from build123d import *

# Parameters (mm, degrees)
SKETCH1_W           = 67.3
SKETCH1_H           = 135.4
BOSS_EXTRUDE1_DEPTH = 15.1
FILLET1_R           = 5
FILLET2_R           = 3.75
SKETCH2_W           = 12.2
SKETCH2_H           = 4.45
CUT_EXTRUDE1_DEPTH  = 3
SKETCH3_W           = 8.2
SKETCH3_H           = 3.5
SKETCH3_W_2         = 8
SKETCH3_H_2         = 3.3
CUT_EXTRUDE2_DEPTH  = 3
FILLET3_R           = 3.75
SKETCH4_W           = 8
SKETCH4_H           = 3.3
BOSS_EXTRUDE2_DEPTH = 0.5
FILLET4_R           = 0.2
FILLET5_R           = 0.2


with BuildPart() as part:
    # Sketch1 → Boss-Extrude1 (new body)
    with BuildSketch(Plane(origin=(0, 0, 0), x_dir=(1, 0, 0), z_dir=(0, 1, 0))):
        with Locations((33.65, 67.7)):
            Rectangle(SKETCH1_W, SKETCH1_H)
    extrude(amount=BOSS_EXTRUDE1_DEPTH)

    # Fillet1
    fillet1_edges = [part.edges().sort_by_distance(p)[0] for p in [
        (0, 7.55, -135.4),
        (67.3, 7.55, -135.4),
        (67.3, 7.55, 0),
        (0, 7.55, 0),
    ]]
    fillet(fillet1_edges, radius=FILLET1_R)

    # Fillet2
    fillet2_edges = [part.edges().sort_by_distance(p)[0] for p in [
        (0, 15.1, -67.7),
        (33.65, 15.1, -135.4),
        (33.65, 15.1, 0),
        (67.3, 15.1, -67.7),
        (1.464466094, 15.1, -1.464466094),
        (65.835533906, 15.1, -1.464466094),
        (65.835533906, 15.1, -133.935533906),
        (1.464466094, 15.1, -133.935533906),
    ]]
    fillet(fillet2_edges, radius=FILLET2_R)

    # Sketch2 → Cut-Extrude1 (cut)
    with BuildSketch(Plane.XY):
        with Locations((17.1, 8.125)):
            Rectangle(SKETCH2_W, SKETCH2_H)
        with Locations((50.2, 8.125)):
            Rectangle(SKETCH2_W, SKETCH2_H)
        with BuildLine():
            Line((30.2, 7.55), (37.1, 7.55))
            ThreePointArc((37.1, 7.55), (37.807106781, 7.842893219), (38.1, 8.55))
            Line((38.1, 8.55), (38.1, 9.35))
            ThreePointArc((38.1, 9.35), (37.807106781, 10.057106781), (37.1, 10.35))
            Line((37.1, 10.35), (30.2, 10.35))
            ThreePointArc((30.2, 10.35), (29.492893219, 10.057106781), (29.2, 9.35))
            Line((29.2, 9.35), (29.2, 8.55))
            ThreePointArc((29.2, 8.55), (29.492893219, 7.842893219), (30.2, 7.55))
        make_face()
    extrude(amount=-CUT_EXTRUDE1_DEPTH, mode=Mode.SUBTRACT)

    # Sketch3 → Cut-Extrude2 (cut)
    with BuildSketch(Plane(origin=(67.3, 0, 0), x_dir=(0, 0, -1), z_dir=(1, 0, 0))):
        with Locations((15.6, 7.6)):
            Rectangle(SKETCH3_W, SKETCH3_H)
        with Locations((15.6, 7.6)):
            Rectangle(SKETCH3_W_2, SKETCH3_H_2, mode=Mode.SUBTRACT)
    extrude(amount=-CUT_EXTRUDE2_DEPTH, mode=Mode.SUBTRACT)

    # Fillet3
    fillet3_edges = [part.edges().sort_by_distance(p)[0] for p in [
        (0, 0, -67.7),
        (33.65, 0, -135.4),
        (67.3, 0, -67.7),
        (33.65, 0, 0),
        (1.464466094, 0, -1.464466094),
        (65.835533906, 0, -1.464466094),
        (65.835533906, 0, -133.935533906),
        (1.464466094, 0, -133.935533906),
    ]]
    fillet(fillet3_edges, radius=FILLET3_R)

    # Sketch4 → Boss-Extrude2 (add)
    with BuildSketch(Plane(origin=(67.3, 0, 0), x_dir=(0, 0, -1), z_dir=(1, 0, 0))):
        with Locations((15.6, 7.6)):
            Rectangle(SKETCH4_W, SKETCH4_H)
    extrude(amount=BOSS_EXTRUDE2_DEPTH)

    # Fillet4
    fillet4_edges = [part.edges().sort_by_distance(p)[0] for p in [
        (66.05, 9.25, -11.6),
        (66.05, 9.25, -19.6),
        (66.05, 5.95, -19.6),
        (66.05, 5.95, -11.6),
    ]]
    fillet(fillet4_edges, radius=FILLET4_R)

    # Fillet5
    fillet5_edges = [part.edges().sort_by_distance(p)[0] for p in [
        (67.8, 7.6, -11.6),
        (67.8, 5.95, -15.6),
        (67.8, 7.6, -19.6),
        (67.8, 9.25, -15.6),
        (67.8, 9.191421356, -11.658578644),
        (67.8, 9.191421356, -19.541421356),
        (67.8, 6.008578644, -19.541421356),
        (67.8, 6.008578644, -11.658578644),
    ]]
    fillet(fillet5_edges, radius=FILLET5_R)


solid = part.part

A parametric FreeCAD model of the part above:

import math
import FreeCAD as App
import Part
import Sketcher

V = App.Vector


def edges_at(feature, points):
    """Names of the edges that pass closest to the given points."""
    edges = feature.Shape.Edges
    near = lambda p: min(range(len(edges)), key=lambda i: edges[i].distToShape(Part.Vertex(*p))[0])
    return sorted({f"Edge{near(p) + 1}" for p in points})


def add_polygon(sketch, points):
    """Adds a closed chain of lines whose ends are joined by coincident constraints."""
    first, n = sketch.GeometryCount, len(points)
    for a, b in zip(points, points[1:] + points[:1]):
        sketch.addGeometry(Part.LineSegment(App.Vector(*a, 0), App.Vector(*b, 0)), False)
    for i in range(n):
        sketch.addConstraint(Sketcher.Constraint("Coincident", first + i, 2, first + (i + 1) % n, 1))

doc = App.newDocument("Part")
body = doc.addObject("PartDesign::Body", "Body")

# Sketch on XZ plane
sketch1 = doc.addObject("Sketcher::SketchObject", "Sketch")
body.addObject(sketch1)
sketch1.AttachmentSupport = (doc.XZ_Plane, [""])
sketch1.MapMode = "FlatFace"
add_polygon(sketch1, [(0, -135.4), (0, 0), (67.3, 0), (67.3, -135.4)])  # lines 0-3
sketch1.addConstraint([
    Sketcher.Constraint("Vertical", 0),
    Sketcher.Constraint("Horizontal", 1),
    Sketcher.Constraint("Vertical", 2),
    Sketcher.Constraint("Horizontal", 3),
    Sketcher.Constraint("Coincident", 0, 2, -1, 1),
    Sketcher.Constraint("DistanceX", 1, 1, 1, 2, 67.3),
    Sketcher.Constraint("DistanceY", 0, 1, 0, 2, 135.4),
])
pad1 = doc.addObject("PartDesign::Pad", "Pad")
body.addObject(pad1)
pad1.Profile = sketch1
pad1.Length = 15.1
pad1.Reversed = True
doc.recompute()

fillet = doc.addObject("PartDesign::Fillet", "Fillet")
body.addObject(fillet)
fillet.Base = (pad1, edges_at(pad1, [
    (0, 7.55, -135.4),
    (67.3, 7.55, -135.4),
    (67.3, 7.55, 0),
    (0, 7.55, 0),
]))
fillet.Radius = 5
doc.recompute()

fillet2 = doc.addObject("PartDesign::Fillet", "Fillet001")
body.addObject(fillet2)
fillet2.Base = (fillet, edges_at(fillet, [
    (0, 15.1, -67.7),
    (33.65, 15.1, -135.4),
    (33.65, 15.1, 0),
    (67.3, 15.1, -67.7),
    (1.464, 15.1, -1.464),
    (65.836, 15.1, -1.464),
    (65.836, 15.1, -133.936),
    (1.464, 15.1, -133.936),
]))
fillet2.Radius = 3.75

# Sketch on XY plane
sketch2 = doc.addObject("Sketcher::SketchObject", "Sketch001")
body.addObject(sketch2)
sketch2.AttachmentSupport = (doc.XY_Plane, [""])
sketch2.MapMode = "FlatFace"
add_polygon(sketch2, [(11, 10.35), (11, 5.9), (23.2, 5.9), (23.2, 10.35)])  # lines 0-3
add_polygon(sketch2, [(44.1, 10.35), (44.1, 5.9), (56.3, 5.9), (56.3, 10.35)])  # lines 4-7
sketch2.addGeometry(Part.LineSegment(V(30.2, 7.55, 0), V(37.1, 7.55, 0)), False)  # 8
sketch2.addGeometry(Part.ArcOfCircle(Part.Circle(V(37.1, 8.55, 0), V(0, 0, 1), 1), math.radians(-90), math.radians(0)), False)  # 9
sketch2.addGeometry(Part.LineSegment(V(38.1, 8.55, 0), V(38.1, 9.35, 0)), False)  # 10
sketch2.addGeometry(Part.ArcOfCircle(Part.Circle(V(37.1, 9.35, 0), V(0, 0, 1), 1), math.radians(0), math.radians(90)), False)  # 11
sketch2.addGeometry(Part.LineSegment(V(37.1, 10.35, 0), V(30.2, 10.35, 0)), False)  # 12
sketch2.addGeometry(Part.ArcOfCircle(Part.Circle(V(30.2, 9.35, 0), V(0, 0, 1), 1), math.radians(90), math.radians(180)), False)  # 13
sketch2.addGeometry(Part.LineSegment(V(29.2, 9.35, 0), V(29.2, 8.55, 0)), False)  # 14
sketch2.addGeometry(Part.ArcOfCircle(Part.Circle(V(30.2, 8.55, 0), V(0, 0, 1), 1), math.radians(-180), math.radians(-90)), False)  # 15
sketch2.addConstraint([
    Sketcher.Constraint("Tangent", 8, 2, 9, 1),
    Sketcher.Constraint("Tangent", 9, 2, 10, 1),
    Sketcher.Constraint("Tangent", 10, 2, 11, 1),
    Sketcher.Constraint("Tangent", 11, 2, 12, 1),
    Sketcher.Constraint("Tangent", 12, 2, 13, 1),
    Sketcher.Constraint("Tangent", 13, 2, 14, 1),
    Sketcher.Constraint("Tangent", 14, 2, 15, 1),
    Sketcher.Constraint("Tangent", 15, 2, 8, 1),
    Sketcher.Constraint("Vertical", 0),
    Sketcher.Constraint("Horizontal", 1),
    Sketcher.Constraint("Vertical", 2),
    Sketcher.Constraint("Horizontal", 3),
    Sketcher.Constraint("Vertical", 4),
    Sketcher.Constraint("Horizontal", 5),
    Sketcher.Constraint("Vertical", 6),
    Sketcher.Constraint("Horizontal", 7),
    Sketcher.Constraint("Horizontal", 8),
    Sketcher.Constraint("Vertical", 10),
    Sketcher.Constraint("Horizontal", 12),
    Sketcher.Constraint("Vertical", 14),
    Sketcher.Constraint("Equal", 9, 11),
    Sketcher.Constraint("Equal", 11, 13),
    Sketcher.Constraint("Equal", 13, 15),
    Sketcher.Constraint("Horizontal", 1, 2, 4, 2),
    Sketcher.Constraint("Horizontal", 3, 2, 6, 2),
    Sketcher.Constraint("Horizontal", 7, 2, 11, 2),
    Sketcher.Constraint("Equal", 3, 5),
    Sketcher.Constraint("Radius", 9, 1.0),
    Sketcher.Constraint("DistanceX", 1, 1, 1, 2, 12.2),
    Sketcher.Constraint("DistanceX", 8, 1, 8, 2, 6.9),
    Sketcher.Constraint("DistanceY", 10, 1, 10, 2, 0.8),
    Sketcher.Constraint("DistanceX", -1, 1, 0, 2, 11.0),
    Sketcher.Constraint("DistanceX", 1, 2, 15, 3, 7.0),
    Sketcher.Constraint("DistanceX", 9, 3, 4, 2, 7.0),
    Sketcher.Constraint("DistanceY", 0, 2, 0, 1, 4.45),
    Sketcher.Constraint("DistanceY", -1, 1, 0, 2, 5.9),
])
pocket1 = doc.addObject("PartDesign::Pocket", "Pocket")
body.addObject(pocket1)
pocket1.Profile = sketch2
pocket1.Length = 3

# Sketch on YZ plane
sketch3 = doc.addObject("Sketcher::SketchObject", "Sketch002")
body.addObject(sketch3)
sketch3.AttachmentSupport = (doc.YZ_Plane, [""])
sketch3.MapMode = "FlatFace"
sketch3.AttachmentOffset = App.Placement(V(0, 0, 67.3), App.Rotation())
add_polygon(sketch3, [(9.35, -11.5), (5.85, -11.5), (5.85, -19.7), (9.35, -19.7)])  # lines 0-3
add_polygon(sketch3, [(5.95, -19.6), (5.95, -11.6), (9.25, -11.6), (9.25, -19.6)])  # lines 4-7
sketch3.addConstraint([
    Sketcher.Constraint("Horizontal", 0),
    Sketcher.Constraint("Vertical", 1),
    Sketcher.Constraint("Horizontal", 2),
    Sketcher.Constraint("Vertical", 3),
    Sketcher.Constraint("Vertical", 4),
    Sketcher.Constraint("Horizontal", 5),
    Sketcher.Constraint("Vertical", 6),
    Sketcher.Constraint("Horizontal", 7),
    Sketcher.Constraint("DistanceY", 4, 1, 4, 2, 8.0),
    Sketcher.Constraint("DistanceX", 0, 2, 0, 1, 3.5),
    Sketcher.Constraint("DistanceX", 5, 1, 5, 2, 3.3),
    Sketcher.Constraint("DistanceY", 1, 2, 1, 1, 8.2),
    Sketcher.Constraint("DistanceY", 0, 2, -1, 1, 11.5),
    Sketcher.Constraint("DistanceY", 4, 2, -1, 1, 11.6),
    Sketcher.Constraint("DistanceX", 0, 2, 4, 2, 0.1),
    Sketcher.Constraint("DistanceX", -1, 1, 0, 2, 5.85),
])
pocket2 = doc.addObject("PartDesign::Pocket", "Pocket001")
body.addObject(pocket2)
pocket2.Profile = sketch3
pocket2.Length = 3
doc.recompute()

fillet3 = doc.addObject("PartDesign::Fillet", "Fillet002")
body.addObject(fillet3)
fillet3.Base = (pocket2, edges_at(pocket2, [
    (0, 0, -67.7),
    (33.65, 0, -135.4),
    (67.3, 0, -67.7),
    (33.65, 0, 0),
    (1.464, 0, -1.464),
    (65.836, 0, -1.464),
    (65.836, 0, -133.936),
    (1.464, 0, -133.936),
]))
fillet3.Radius = 3.75

# Sketch on YZ plane
sketch4 = doc.addObject("Sketcher::SketchObject", "Sketch003")
body.addObject(sketch4)
sketch4.AttachmentSupport = (doc.YZ_Plane, [""])
sketch4.MapMode = "FlatFace"
sketch4.AttachmentOffset = App.Placement(V(0, 0, 67.3), App.Rotation())
add_polygon(sketch4, [(9.25, -11.6), (5.95, -11.6), (5.95, -19.6), (9.25, -19.6)])  # lines 0-3
sketch4.addConstraint([
    Sketcher.Constraint("Horizontal", 0),
    Sketcher.Constraint("Vertical", 1),
    Sketcher.Constraint("Horizontal", 2),
    Sketcher.Constraint("Vertical", 3),
    Sketcher.Constraint("DistanceY", 1, 2, 1, 1, 8.0),
    Sketcher.Constraint("DistanceX", 0, 2, 0, 1, 3.3),
    Sketcher.Constraint("DistanceY", 0, 2, -1, 1, 11.6),
    Sketcher.Constraint("DistanceX", -1, 1, 0, 2, 5.95),
])
pad2 = doc.addObject("PartDesign::Pad", "Pad001")
body.addObject(pad2)
pad2.Profile = sketch4
pad2.Length = 0.5
doc.recompute()

fillet4 = doc.addObject("PartDesign::Fillet", "Fillet003")
body.addObject(fillet4)
fillet4.Base = (pad2, edges_at(pad2, [
    (66.05, 9.25, -11.6),
    (66.05, 9.25, -19.6),
    (66.05, 5.95, -19.6),
    (66.05, 5.95, -11.6),
]))
fillet4.Radius = 0.2
doc.recompute()

fillet5 = doc.addObject("PartDesign::Fillet", "Fillet004")
body.addObject(fillet5)
fillet5.Base = (fillet4, edges_at(fillet4, [
    (67.8, 7.6, -11.6),
    (67.8, 5.95, -15.6),
    (67.8, 7.6, -19.6),
    (67.8, 9.25, -15.6),
    (67.8, 9.191, -11.659),
    (67.8, 9.191, -19.541),
    (67.8, 6.009, -19.541),
    (67.8, 6.009, -11.659),
]))
fillet5.Radius = 0.2

doc.recompute()
